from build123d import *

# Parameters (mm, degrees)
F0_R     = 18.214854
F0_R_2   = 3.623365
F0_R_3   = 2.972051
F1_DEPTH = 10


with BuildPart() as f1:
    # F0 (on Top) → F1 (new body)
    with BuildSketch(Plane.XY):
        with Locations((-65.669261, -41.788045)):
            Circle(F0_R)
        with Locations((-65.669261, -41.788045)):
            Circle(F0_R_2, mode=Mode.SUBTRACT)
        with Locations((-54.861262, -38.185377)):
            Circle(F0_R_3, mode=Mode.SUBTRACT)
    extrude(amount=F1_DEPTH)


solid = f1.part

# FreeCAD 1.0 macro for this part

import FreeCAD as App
import Part
import Sketcher

doc = App.newDocument("Part")
body = doc.addObject("PartDesign::Body", "Body")

# Sketch on XY plane
sketch1 = body.newObject("Sketcher::SketchObject", "Sketch")
sketch1.AttachmentSupport = (doc.getObject("XY_Plane"), [""])
sketch1.MapMode = "FlatFace"
sketch1.addGeometry([
    Part.Circle(App.Vector(-65.7, -41.8, 0), App.Vector(0, 0, 1), 18.2),
    Part.Circle(App.Vector(-65.7, -41.8, 0), App.Vector(0, 0, 1), 3.6),
    Part.Circle(App.Vector(-54.9, -38.2, 0), App.Vector(0, 0, 1), 3),
], False)
sketch1.addConstraint([
    Sketcher.Constraint("Coincident", 1, 3, 0, 3),
    Sketcher.Constraint("Diameter", 1, 7.24673),
    Sketcher.Constraint("Diameter", 0, 36.429708),
    Sketcher.Constraint("Diameter", 2, 5.944102),
    Sketcher.Constraint("DistanceX", 0, 3, 2, 3, 10.807999),
    Sketcher.Constraint("DistanceX", 0, 3, -1, 1, 65.669261),
    Sketcher.Constraint("DistanceY", 0, 3, -1, 1, 41.788045),
    Sketcher.Constraint("DistanceY", 2, 3, -1, 1, 38.185377),
])
pad1 = body.newObject("PartDesign::Pad", "Pad")
pad1.Profile = sketch1
pad1.Length = 10

doc.recompute()
